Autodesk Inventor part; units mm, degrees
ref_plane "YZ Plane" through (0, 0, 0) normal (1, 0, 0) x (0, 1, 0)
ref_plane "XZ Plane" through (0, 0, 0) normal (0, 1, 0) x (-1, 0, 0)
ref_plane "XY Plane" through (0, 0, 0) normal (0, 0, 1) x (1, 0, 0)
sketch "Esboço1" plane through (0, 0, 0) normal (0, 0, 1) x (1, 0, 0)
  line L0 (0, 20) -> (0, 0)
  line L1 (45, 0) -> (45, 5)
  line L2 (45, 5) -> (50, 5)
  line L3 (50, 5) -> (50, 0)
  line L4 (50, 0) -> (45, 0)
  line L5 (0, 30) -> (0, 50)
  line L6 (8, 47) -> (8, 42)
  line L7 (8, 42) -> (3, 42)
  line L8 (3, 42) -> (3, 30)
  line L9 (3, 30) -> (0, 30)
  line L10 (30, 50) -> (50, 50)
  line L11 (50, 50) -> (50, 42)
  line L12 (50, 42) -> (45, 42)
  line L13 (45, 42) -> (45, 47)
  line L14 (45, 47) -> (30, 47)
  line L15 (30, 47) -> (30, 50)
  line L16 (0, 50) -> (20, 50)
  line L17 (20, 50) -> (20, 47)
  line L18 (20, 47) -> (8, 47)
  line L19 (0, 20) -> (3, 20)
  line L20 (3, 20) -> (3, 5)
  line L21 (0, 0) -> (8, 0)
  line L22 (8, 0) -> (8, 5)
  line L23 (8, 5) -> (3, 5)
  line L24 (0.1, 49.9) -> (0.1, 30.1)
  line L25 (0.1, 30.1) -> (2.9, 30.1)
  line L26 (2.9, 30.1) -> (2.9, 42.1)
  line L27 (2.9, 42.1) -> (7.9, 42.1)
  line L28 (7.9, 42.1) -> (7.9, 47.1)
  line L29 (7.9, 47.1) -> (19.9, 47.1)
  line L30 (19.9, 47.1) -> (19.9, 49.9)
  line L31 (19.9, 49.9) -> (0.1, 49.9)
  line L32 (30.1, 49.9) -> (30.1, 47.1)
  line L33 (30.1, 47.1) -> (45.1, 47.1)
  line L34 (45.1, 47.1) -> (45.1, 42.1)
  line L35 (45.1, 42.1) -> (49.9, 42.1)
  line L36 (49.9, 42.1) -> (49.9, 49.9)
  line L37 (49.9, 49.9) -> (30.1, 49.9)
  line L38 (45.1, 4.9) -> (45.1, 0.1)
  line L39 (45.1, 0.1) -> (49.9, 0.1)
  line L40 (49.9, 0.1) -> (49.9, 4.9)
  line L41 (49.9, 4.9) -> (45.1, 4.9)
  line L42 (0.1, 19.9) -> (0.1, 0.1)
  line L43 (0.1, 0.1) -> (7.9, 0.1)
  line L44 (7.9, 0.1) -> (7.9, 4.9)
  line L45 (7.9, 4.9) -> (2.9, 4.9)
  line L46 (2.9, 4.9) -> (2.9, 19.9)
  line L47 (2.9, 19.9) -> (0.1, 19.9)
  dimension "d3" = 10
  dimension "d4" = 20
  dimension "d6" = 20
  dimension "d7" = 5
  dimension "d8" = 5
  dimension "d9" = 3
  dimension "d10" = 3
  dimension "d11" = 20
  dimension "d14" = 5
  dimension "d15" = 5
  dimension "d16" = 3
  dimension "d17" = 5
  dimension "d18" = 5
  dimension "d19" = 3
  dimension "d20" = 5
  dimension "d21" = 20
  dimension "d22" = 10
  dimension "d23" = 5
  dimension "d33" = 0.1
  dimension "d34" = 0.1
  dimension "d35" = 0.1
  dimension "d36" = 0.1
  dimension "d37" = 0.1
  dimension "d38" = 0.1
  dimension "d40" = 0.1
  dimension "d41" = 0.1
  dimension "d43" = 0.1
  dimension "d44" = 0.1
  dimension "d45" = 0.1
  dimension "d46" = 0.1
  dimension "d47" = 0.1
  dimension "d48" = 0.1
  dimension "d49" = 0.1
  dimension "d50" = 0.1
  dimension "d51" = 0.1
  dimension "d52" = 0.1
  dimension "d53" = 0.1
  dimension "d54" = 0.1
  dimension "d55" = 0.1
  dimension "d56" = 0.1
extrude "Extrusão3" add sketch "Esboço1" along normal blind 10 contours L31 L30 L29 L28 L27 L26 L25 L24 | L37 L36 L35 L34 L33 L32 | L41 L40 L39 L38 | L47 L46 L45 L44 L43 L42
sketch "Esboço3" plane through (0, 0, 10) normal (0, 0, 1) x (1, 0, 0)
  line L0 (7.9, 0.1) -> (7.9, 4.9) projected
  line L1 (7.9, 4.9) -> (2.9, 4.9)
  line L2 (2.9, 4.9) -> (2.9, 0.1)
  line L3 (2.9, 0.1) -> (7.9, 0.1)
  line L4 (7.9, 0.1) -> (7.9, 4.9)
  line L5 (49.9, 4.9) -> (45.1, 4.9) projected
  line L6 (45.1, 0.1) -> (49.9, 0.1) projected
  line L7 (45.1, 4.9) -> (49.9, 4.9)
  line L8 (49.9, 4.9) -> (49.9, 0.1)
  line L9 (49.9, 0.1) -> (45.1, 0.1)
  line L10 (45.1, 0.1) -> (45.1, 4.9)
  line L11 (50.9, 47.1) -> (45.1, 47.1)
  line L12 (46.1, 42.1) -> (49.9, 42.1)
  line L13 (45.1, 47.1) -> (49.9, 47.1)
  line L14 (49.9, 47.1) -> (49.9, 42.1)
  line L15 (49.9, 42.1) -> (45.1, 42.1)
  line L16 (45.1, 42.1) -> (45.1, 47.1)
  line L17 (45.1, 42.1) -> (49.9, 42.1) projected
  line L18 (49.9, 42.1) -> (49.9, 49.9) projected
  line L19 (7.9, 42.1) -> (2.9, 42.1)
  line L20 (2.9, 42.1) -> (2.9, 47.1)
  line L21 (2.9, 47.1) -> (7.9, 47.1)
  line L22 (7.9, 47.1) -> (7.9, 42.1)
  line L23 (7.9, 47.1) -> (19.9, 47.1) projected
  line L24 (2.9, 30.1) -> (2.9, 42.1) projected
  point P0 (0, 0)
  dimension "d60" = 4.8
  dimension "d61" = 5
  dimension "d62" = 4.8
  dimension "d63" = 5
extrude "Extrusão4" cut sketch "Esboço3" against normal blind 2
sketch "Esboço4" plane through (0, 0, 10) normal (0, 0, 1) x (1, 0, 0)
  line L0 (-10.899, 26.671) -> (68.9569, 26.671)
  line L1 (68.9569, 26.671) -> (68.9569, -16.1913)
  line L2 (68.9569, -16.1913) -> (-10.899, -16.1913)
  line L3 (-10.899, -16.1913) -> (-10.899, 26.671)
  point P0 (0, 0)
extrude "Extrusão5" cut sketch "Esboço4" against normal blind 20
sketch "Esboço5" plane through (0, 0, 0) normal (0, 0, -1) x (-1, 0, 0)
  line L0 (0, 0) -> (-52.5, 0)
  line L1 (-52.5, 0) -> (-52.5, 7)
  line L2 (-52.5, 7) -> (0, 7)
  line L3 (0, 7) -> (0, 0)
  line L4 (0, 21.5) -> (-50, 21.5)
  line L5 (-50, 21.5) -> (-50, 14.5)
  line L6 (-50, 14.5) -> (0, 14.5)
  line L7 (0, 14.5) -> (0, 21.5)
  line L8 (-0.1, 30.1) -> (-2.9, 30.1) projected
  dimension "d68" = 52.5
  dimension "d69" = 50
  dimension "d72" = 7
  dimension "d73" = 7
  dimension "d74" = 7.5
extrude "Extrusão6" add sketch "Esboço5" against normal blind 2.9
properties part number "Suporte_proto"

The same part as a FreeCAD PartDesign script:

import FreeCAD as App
import Part
import Sketcher


def add_polygon(sketch, points):
    """Adds a closed chain of lines whose ends are joined by coincident constraints."""
    first, n = sketch.GeometryCount, len(points)
    for a, b in zip(points, points[1:] + points[:1]):
        sketch.addGeometry(Part.LineSegment(App.Vector(*a, 0), App.Vector(*b, 0)), False)
    for i in range(n):
        sketch.addConstraint(Sketcher.Constraint("Coincident", first + i, 2, first + (i + 1) % n, 1))

doc = App.newDocument("Part")
body = doc.addObject("PartDesign::Body", "Body")
body.AllowCompound = True

sketch1 = body.newObject("Sketcher::SketchObject", "Sketch")
sketch1.AttachmentSupport = (doc.getObject("XY_Plane"), [""])
sketch1.MapMode = "FlatFace"
add_polygon(sketch1, [(19.9, 49.9), (0.1, 49.9), (0.1, 30.1), (2.9, 30.1), (2.9, 42.1), (7.9, 42.1), (7.9, 47.1), (19.9, 47.1)])
add_polygon(sketch1, [(49.9, 49.9), (30.1, 49.9), (30.1, 47.1), (45.1, 47.1), (45.1, 42.1), (49.9, 42.1)])
add_polygon(sketch1, [(49.9, 4.9), (45.1, 4.9), (45.1, 0.1), (49.9, 0.1)])
add_polygon(sketch1, [(2.9, 19.9), (0.1, 19.9), (0.1, 0.1), (7.9, 0.1), (7.9, 4.9), (2.9, 4.9)])
sketch1.addConstraint(Sketcher.Constraint("Horizontal", 0))
sketch1.addConstraint(Sketcher.Constraint("Vertical", 1))
sketch1.addConstraint(Sketcher.Constraint("Horizontal", 2))
sketch1.addConstraint(Sketcher.Constraint("Vertical", 3))
sketch1.addConstraint(Sketcher.Constraint("Horizontal", 4))
sketch1.addConstraint(Sketcher.Constraint("Vertical", 5))
sketch1.addConstraint(Sketcher.Constraint("Horizontal", 6))
sketch1.addConstraint(Sketcher.Constraint("Vertical", 7))
sketch1.addConstraint(Sketcher.Constraint("Horizontal", 8))
sketch1.addConstraint(Sketcher.Constraint("Vertical", 9))
sketch1.addConstraint(Sketcher.Constraint("Horizontal", 10))
sketch1.addConstraint(Sketcher.Constraint("Vertical", 11))
sketch1.addConstraint(Sketcher.Constraint("Horizontal", 12))
sketch1.addConstraint(Sketcher.Constraint("Vertical", 13))
sketch1.addConstraint(Sketcher.Constraint("Horizontal", 14))
sketch1.addConstraint(Sketcher.Constraint("Vertical", 15))
sketch1.addConstraint(Sketcher.Constraint("Horizontal", 16))
sketch1.addConstraint(Sketcher.Constraint("Vertical", 17))
sketch1.addConstraint(Sketcher.Constraint("Horizontal", 18))
sketch1.addConstraint(Sketcher.Constraint("Vertical", 19))
sketch1.addConstraint(Sketcher.Constraint("Horizontal", 20))
sketch1.addConstraint(Sketcher.Constraint("Vertical", 21))
sketch1.addConstraint(Sketcher.Constraint("Horizontal", 22))
sketch1.addConstraint(Sketcher.Constraint("Vertical", 23))
sketch1.addConstraint(Sketcher.Constraint("Horizontal", 7, 2, 8, 2))
sketch1.addConstraint(Sketcher.Constraint("Horizontal", 6, 2, 9, 2))
sketch1.addConstraint(Sketcher.Constraint("Horizontal", 4, 2, 11, 2))
sketch1.addConstraint(Sketcher.Constraint("Horizontal", 16, 2, 19, 2))
sketch1.addConstraint(Sketcher.Constraint("Horizontal", 17, 2, 21, 2))
sketch1.addConstraint(Sketcher.Constraint("Vertical", 11, 2, 14, 2))
sketch1.addConstraint(Sketcher.Constraint("Vertical", 13, 2, 16, 2))
sketch1.addConstraint(Sketcher.Constraint("Vertical", 1, 2, 18, 2))
sketch1.addConstraint(Sketcher.Constraint("Vertical", 5, 2, 20, 2))
sketch1.addConstraint(Sketcher.Constraint("Vertical", 3, 2, 22, 2))
sketch1.addConstraint(Sketcher.Constraint("Equal", 0, 8))
sketch1.addConstraint(Sketcher.Constraint("Equal", 8, 1))
sketch1.addConstraint(Sketcher.Constraint("Equal", 6, 3))
sketch1.addConstraint(Sketcher.Constraint("Equal", 22, 5))
sketch1.addConstraint(Sketcher.Constraint("Equal", 16, 15))
sketch1.addConstraint(Sketcher.Constraint("Equal", 1, 19))
sketch1.addConstraint(Sketcher.Constraint("DistanceX", 4, 1, 4, 2, 5.0))
sketch1.addConstraint(Sketcher.Constraint("DistanceX", -1, 1, 0, 2, 0.1))
sketch1.addConstraint(Sketcher.Constraint("DistanceY", -1, 1, 15, 2, 0.1))
sketch1.addConstraint(Sketcher.Constraint("DistanceX", 6, 1, 6, 2, 12.0))
sketch1.addConstraint(Sketcher.Constraint("DistanceX", 10, 1, 10, 2, 15.0))
sketch1.addConstraint(Sketcher.Constraint("DistanceX", 0, 2, 0, 1, 19.8))
sketch1.addConstraint(Sketcher.Constraint("DistanceX", 6, 2, 12, 2, 30.0))
sketch1.addConstraint(Sketcher.Constraint("DistanceY", 14, 2, 13, 2, 45.0))
pad1 = body.newObject("PartDesign::Pad", "Pad")
pad1.Profile = sketch1
pad1.Length = 10

sketch2 = body.newObject("Sketcher::SketchObject", "Sketch001")
sketch2.AttachmentSupport = (doc.getObject("XY_Plane"), [""])
sketch2.MapMode = "FlatFace"
sketch2.AttachmentOffset = App.Placement(App.Vector(0, 0, 10), App.Rotation())
add_polygon(sketch2, [(2.9, 0.1), (7.9, 0.1), (7.9, 4.9), (2.9, 4.9)])
add_polygon(sketch2, [(49.9, 0.1), (49.9, 4.9), (45.1, 4.9), (45.1, 0.1)])
add_polygon(sketch2, [(49.9, 42.1), (49.9, 47.1), (45.1, 47.1), (45.1, 42.1)])
add_polygon(sketch2, [(2.9, 42.1), (7.9, 42.1), (7.9, 47.1), (2.9, 47.1)])
sketch2.addConstraint(Sketcher.Constraint("Horizontal", 0))
sketch2.addConstraint(Sketcher.Constraint("Vertical", 1))
sketch2.addConstraint(Sketcher.Constraint("Horizontal", 2))
sketch2.addConstraint(Sketcher.Constraint("Vertical", 3))
sketch2.addConstraint(Sketcher.Constraint("Vertical", 4))
sketch2.addConstraint(Sketcher.Constraint("Horizontal", 5))
sketch2.addConstraint(Sketcher.Constraint("Vertical", 6))
sketch2.addConstraint(Sketcher.Constraint("Horizontal", 7))
sketch2.addConstraint(Sketcher.Constraint("Vertical", 8))
sketch2.addConstraint(Sketcher.Constraint("Horizontal", 9))
sketch2.addConstraint(Sketcher.Constraint("Vertical", 10))
sketch2.addConstraint(Sketcher.Constraint("Horizontal", 11))
sketch2.addConstraint(Sketcher.Constraint("Horizontal", 12))
sketch2.addConstraint(Sketcher.Constraint("Vertical", 13))
sketch2.addConstraint(Sketcher.Constraint("Horizontal", 14))
sketch2.addConstraint(Sketcher.Constraint("Vertical", 15))
sketch2.addConstraint(Sketcher.Constraint("Horizontal", 2, 2, 4, 2))
sketch2.addConstraint(Sketcher.Constraint("Horizontal", 3, 2, 6, 2))
sketch2.addConstraint(Sketcher.Constraint("Horizontal", 11, 2, 12, 2))
sketch2.addConstraint(Sketcher.Constraint("Horizontal", 9, 2, 13, 2))
sketch2.addConstraint(Sketcher.Constraint("Vertical", 7, 2, 8, 2))
sketch2.addConstraint(Sketcher.Constraint("Vertical", 6, 2, 9, 2))
sketch2.addConstraint(Sketcher.Constraint("Vertical", 1, 2, 12, 2))
sketch2.addConstraint(Sketcher.Constraint("Vertical", 3, 2, 14, 2))
sketch2.addConstraint(Sketcher.Constraint("Equal", 11, 1))
sketch2.addConstraint(Sketcher.Constraint("Equal", 14, 8))
sketch2.addConstraint(Sketcher.Constraint("DistanceX", 0, 1, 0, 2, 5.0))
sketch2.addConstraint(Sketcher.Constraint("DistanceX", 5, 2, 5, 1, 4.8))
sketch2.addConstraint(Sketcher.Constraint("DistanceX", 1, 2, 4, 2, 42.0))
sketch2.addConstraint(Sketcher.Constraint("DistanceY", 7, 2, 8, 2, 47.0))
sketch2.addConstraint(Sketcher.Constraint("DistanceX", -1, 1, 0, 2, 7.9))
sketch2.addConstraint(Sketcher.Constraint("DistanceY", -1, 1, 0, 2, 0.1))
pocket1 = body.newObject("PartDesign::Pocket", "Pocket")
pocket1.Profile = sketch2
pocket1.Length = 2

sketch3 = body.newObject("Sketcher::SketchObject", "Sketch002")
sketch3.AttachmentSupport = (doc.getObject("XY_Plane"), [""])
sketch3.MapMode = "FlatFace"
sketch3.AttachmentOffset = App.Placement(App.Vector(0, 0, 10), App.Rotation())
add_polygon(sketch3, [(68.9569, 26.671), (-10.899, 26.671), (-10.899, -16.1913), (68.9569, -16.1913)])
sketch3.addConstraint(Sketcher.Constraint("Horizontal", 0))
sketch3.addConstraint(Sketcher.Constraint("Vertical", 1))
sketch3.addConstraint(Sketcher.Constraint("Horizontal", 2))
sketch3.addConstraint(Sketcher.Constraint("Vertical", 3))
sketch3.addConstraint(Sketcher.Constraint("DistanceX", 0, 2, 0, 1, 79.856))
sketch3.addConstraint(Sketcher.Constraint("DistanceY", 1, 2, 1, 1, 42.8623))
sketch3.addConstraint(Sketcher.Constraint("DistanceX", 0, 2, -1, 1, 10.899))
sketch3.addConstraint(Sketcher.Constraint("DistanceY", -1, 1, 0, 2, 26.671))
pocket2 = body.newObject("PartDesign::Pocket", "Pocket001")
pocket2.Profile = sketch3
pocket2.Length = 20

sketch4 = body.newObject("Sketcher::SketchObject", "Sketch003")
sketch4.AttachmentSupport = (doc.getObject("XY_Plane"), [""])
sketch4.MapMode = "FlatFace"
add_polygon(sketch4, [(52.5, 0), (0, 0), (0, 7), (52.5, 7)])
add_polygon(sketch4, [(0, 14.5), (0, 21.5), (50, 21.5), (50, 14.5)])
sketch4.addConstraint(Sketcher.Constraint("Horizontal", 0))
sketch4.addConstraint(Sketcher.Constraint("Vertical", 1))
sketch4.addConstraint(Sketcher.Constraint("Horizontal", 2))
sketch4.addConstraint(Sketcher.Constraint("Vertical", 3))
sketch4.addConstraint(Sketcher.Constraint("Vertical", 4))
sketch4.addConstraint(Sketcher.Constraint("Horizontal", 5))
sketch4.addConstraint(Sketcher.Constraint("Vertical", 6))
sketch4.addConstraint(Sketcher.Constraint("Horizontal", 7))
sketch4.addConstraint(Sketcher.Constraint("Coincident", 0, 2, -1, 1))
sketch4.addConstraint(Sketcher.Constraint("PointOnObject", 4, 2, -2))
sketch4.addConstraint(Sketcher.Constraint("Equal", 3, 4))
sketch4.addConstraint(Sketcher.Constraint("DistanceX", 5, 1, 5, 2, 50.0))
sketch4.addConstraint(Sketcher.Constraint("DistanceY", 1, 1, 1, 2, 7.0))
sketch4.addConstraint(Sketcher.Constraint("DistanceX", 0, 2, 0, 1, 52.5))
sketch4.addConstraint(Sketcher.Constraint("DistanceY", 2, 2, 6, 2, 7.5))
pad2 = body.newObject("PartDesign::Pad", "Pad001")
pad2.Profile = sketch4
pad2.Length = 2.9

doc.recompute()
